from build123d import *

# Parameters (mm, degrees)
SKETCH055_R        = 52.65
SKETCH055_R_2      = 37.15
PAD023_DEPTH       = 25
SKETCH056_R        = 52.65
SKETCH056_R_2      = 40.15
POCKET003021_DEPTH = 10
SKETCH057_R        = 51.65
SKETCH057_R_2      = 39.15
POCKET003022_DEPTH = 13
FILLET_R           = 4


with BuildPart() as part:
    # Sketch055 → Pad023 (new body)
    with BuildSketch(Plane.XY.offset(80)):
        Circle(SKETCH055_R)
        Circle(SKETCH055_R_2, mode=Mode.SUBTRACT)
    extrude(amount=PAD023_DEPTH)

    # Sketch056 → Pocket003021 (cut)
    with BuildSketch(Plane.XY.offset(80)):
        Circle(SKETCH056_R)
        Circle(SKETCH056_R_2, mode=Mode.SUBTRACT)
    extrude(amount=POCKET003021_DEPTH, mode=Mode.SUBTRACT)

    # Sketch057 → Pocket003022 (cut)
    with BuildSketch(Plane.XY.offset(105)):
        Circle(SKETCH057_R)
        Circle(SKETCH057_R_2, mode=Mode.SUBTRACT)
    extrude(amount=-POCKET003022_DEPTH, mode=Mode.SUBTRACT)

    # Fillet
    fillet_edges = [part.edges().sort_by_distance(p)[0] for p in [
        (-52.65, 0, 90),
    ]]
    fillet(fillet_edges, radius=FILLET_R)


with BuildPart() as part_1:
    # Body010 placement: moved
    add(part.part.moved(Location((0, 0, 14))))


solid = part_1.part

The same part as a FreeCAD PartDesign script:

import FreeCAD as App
import Part
import Sketcher


def edges_at(feature, points):
    """Names of the edges that pass closest to the given points."""
    edges = feature.Shape.Edges
    near = lambda p: min(range(len(edges)), key=lambda i: edges[i].distToShape(Part.Vertex(*p))[0])
    return sorted({f"Edge{near(p) + 1}" for p in points})

doc = App.newDocument("Part")
body = doc.addObject("PartDesign::Body", "Body")

sketch1 = body.newObject("Sketcher::SketchObject", "Sketch")
sketch1.AttachmentSupport = (doc.getObject("XY_Plane"), [""])
sketch1.MapMode = "FlatFace"
sketch1.AttachmentOffset = App.Placement(App.Vector(0, 0, 80), App.Rotation())
sketch1.addGeometry(Part.Circle(App.Vector(0, 0, 0), App.Vector(0, 0, 1), 52.65), False)
sketch1.addGeometry(Part.Circle(App.Vector(0, 0, 0), App.Vector(0, 0, 1), 37.15), False)
sketch1.addConstraint(Sketcher.Constraint("Coincident", 0, 3, -1, 1))
sketch1.addConstraint(Sketcher.Constraint("Coincident", 1, 3, -1, 1))
sketch1.addConstraint(Sketcher.Constraint("Diameter", 0, 105.3))
sketch1.addConstraint(Sketcher.Constraint("Diameter", 1, 74.3))
pad1 = body.newObject("PartDesign::Pad", "Pad")
pad1.Profile = sketch1
pad1.Length = 25

sketch2 = body.newObject("Sketcher::SketchObject", "Sketch001")
sketch2.AttachmentSupport = (doc.getObject("XY_Plane"), [""])
sketch2.MapMode = "FlatFace"
sketch2.AttachmentOffset = App.Placement(App.Vector(0, 0, 80), App.Rotation())
sketch2.addGeometry(Part.Circle(App.Vector(0, 0, 0), App.Vector(0, 0, 1), 52.65), False)
sketch2.addGeometry(Part.Circle(App.Vector(0, 0, 0), App.Vector(0, 0, 1), 40.15), False)
sketch2.addConstraint(Sketcher.Constraint("Coincident", 0, 3, -1, 1))
sketch2.addConstraint(Sketcher.Constraint("Coincident", 1, 3, -1, 1))
sketch2.addConstraint(Sketcher.Constraint("Diameter", 0, 105.3))
sketch2.addConstraint(Sketcher.Constraint("Diameter", 1, 80.3))
pocket1 = body.newObject("PartDesign::Pocket", "Pocket")
pocket1.Profile = sketch2
pocket1.Length = 10
pocket1.Reversed = True

sketch3 = body.newObject("Sketcher::SketchObject", "Sketch002")
sketch3.AttachmentSupport = (doc.getObject("XY_Plane"), [""])
sketch3.MapMode = "FlatFace"
sketch3.AttachmentOffset = App.Placement(App.Vector(0, 0, 105), App.Rotation())
sketch3.addGeometry(Part.Circle(App.Vector(0, 0, 0), App.Vector(0, 0, 1), 51.65), False)
sketch3.addGeometry(Part.Circle(App.Vector(0, 0, 0), App.Vector(0, 0, 1), 39.15), False)
sketch3.addConstraint(Sketcher.Constraint("Coincident", 0, 3, -1, 1))
sketch3.addConstraint(Sketcher.Constraint("Coincident", 1, 3, -1, 1))
sketch3.addConstraint(Sketcher.Constraint("Diameter", 0, 103.3))
sketch3.addConstraint(Sketcher.Constraint("Diameter", 1, 78.3))
pocket2 = body.newObject("PartDesign::Pocket", "Pocket001")
pocket2.Profile = sketch3
pocket2.Length = 13
doc.recompute()

fillet = body.newObject("PartDesign::Fillet", "Fillet")
fillet.Base = (pocket2, edges_at(pocket2, [(-52.65, 0, 90)]))
fillet.Radius = 4
body2 = doc.addObject("PartDesign::Body", "Body001")
doc.recompute()

body.Placement = App.Placement(App.Vector(0, 0, 14), App.Rotation(App.Vector(0, 0, 1), 0))
boolean = body2.newObject("PartDesign::Boolean", "Boolean")
boolean.Type = "Fuse"
boolean.addObjects([body])

doc.recompute()
